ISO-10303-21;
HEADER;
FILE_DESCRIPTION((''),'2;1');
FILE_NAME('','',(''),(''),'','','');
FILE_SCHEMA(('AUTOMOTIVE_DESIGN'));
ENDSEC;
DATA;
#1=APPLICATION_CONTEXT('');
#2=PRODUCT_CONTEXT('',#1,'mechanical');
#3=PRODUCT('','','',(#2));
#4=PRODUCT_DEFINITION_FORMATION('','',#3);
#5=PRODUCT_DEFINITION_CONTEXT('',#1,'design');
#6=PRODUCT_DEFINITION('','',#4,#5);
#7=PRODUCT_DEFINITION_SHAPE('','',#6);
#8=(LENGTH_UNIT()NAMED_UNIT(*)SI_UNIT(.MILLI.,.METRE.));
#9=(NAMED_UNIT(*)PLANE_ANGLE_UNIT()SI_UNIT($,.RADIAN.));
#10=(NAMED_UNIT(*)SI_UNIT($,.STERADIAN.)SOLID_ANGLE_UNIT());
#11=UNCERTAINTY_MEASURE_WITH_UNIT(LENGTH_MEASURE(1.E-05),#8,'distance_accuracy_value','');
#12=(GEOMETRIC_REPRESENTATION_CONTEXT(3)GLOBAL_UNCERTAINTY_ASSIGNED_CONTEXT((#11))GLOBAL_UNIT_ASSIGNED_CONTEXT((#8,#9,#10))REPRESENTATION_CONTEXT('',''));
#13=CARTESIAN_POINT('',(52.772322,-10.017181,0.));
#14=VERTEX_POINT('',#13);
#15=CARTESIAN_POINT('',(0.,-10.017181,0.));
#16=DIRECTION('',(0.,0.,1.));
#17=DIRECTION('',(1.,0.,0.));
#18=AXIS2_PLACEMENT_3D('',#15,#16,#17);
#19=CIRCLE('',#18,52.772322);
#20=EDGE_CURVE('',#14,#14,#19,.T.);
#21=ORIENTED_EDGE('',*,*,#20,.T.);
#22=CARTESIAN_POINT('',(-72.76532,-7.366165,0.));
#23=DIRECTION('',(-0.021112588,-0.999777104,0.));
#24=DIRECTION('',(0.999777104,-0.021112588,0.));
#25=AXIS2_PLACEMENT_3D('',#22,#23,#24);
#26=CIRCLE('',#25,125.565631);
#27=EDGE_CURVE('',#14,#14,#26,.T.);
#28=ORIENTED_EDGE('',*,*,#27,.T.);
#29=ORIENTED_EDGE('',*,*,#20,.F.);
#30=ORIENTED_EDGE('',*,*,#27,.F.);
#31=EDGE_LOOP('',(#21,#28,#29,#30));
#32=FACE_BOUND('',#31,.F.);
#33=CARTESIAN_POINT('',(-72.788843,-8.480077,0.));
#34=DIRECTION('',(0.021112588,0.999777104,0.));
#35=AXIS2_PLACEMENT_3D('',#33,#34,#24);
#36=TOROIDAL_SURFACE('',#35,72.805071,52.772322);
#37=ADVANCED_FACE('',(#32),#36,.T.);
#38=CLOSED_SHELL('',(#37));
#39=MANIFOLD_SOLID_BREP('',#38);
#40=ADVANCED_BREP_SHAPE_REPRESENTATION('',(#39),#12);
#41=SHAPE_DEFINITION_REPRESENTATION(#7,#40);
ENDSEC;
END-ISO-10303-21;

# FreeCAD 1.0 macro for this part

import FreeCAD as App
import Part
import Sketcher
from FreeCAD import Vector

doc = App.newDocument("Part")
body = doc.addObject("PartDesign::Body", "Body")

# Sketch on XY plane
sketch1 = doc.addObject("Sketcher::SketchObject", "Sketch")
body.addObject(sketch1)
sketch1.AttachmentSupport = (doc.XY_Plane, [""])
sketch1.MapMode = "FlatFace"
sketch1.addGeometry(Part.Circle(Vector(0, -10.017181, 0), Vector(0, 0, 1), 52.772322), False)
sketch1.addGeometry(Part.LineSegment(Vector(-72.788843, -8.480077, 0), Vector(-72.999969, -18.477848, 0)), True)  # axis
sketch1.addConstraint([
    Sketcher.Constraint("PointOnObject", 0, 3, -2),
    Sketcher.Constraint("Distance", 1, 10.0),
    Sketcher.Constraint("Diameter", 0, 105.544645),
    Sketcher.Constraint("DistanceY", 0, 3, -1, 1, 10.017181),
    Sketcher.Constraint("DistanceX", 1, 2, -1, 1, 72.999969),
    Sketcher.Constraint("DistanceY", 1, 2, -1, 1, 18.477848),
    Sketcher.Constraint("DistanceY", 1, 2, 1, 1, 9.997771),
])
revolution = doc.addObject("PartDesign::Revolution", "Revolution")
body.addObject(revolution)
revolution.Profile = sketch1
revolution.ReferenceAxis = (sketch1, ["Axis0"])
revolution.Angle = 360

doc.recompute()
